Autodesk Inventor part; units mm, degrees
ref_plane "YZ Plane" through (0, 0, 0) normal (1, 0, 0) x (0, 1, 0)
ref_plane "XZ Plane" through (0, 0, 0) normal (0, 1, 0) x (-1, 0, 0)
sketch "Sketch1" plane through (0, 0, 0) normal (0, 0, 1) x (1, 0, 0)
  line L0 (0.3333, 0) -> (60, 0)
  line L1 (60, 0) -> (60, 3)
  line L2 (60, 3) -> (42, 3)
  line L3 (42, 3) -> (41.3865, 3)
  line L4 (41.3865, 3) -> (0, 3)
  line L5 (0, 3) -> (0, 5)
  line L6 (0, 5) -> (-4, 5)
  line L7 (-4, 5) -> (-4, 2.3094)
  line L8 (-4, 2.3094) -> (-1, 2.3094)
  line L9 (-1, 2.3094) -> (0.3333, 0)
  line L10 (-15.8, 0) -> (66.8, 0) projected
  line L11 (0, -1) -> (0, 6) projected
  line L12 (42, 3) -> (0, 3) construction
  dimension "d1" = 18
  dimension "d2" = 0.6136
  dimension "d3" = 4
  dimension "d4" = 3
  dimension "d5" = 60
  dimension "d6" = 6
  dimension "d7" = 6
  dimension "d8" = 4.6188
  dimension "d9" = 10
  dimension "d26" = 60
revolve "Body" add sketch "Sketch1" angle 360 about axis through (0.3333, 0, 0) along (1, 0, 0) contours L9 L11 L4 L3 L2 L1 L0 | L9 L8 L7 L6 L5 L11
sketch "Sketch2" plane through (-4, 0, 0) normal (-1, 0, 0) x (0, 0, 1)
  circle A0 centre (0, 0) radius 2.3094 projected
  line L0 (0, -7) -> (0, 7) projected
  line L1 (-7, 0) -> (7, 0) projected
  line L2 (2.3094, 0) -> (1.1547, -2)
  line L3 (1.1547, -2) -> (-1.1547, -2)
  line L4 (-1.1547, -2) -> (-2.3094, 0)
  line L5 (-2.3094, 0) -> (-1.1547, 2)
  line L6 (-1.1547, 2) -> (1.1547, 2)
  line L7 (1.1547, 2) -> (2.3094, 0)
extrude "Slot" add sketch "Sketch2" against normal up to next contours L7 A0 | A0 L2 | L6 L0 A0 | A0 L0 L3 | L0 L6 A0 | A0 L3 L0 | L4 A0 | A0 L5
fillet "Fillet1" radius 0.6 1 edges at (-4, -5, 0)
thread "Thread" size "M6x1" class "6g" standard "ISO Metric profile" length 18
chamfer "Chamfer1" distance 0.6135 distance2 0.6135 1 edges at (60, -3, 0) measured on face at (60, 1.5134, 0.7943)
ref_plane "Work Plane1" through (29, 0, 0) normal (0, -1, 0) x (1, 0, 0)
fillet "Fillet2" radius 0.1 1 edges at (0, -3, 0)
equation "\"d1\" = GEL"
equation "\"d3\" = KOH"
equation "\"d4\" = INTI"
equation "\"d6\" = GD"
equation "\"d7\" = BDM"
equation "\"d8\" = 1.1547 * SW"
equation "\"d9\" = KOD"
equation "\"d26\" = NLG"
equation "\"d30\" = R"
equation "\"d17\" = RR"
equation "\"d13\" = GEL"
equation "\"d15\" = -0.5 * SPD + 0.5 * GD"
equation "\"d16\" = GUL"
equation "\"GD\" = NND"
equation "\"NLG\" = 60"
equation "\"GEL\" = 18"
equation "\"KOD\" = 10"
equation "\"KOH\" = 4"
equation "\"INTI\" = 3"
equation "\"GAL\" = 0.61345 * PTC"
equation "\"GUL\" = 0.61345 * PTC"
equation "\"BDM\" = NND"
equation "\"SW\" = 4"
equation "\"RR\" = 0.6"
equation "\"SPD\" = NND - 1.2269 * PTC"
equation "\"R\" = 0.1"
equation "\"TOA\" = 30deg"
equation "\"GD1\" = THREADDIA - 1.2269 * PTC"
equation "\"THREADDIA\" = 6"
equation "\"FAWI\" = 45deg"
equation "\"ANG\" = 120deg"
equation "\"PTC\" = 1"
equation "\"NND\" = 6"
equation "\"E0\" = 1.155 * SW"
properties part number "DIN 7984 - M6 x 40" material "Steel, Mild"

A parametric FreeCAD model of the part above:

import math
import FreeCAD as App
import Part
import Sketcher
from FreeCAD import Vector
Q = App.Units.Quantity


def edges_at(feature, points):
    """Names of the edges that pass closest to the given points."""
    edges = feature.Shape.Edges
    near = lambda p: min(range(len(edges)), key=lambda i: edges[i].distToShape(Part.Vertex(*p))[0])
    return sorted({f"Edge{near(p) + 1}" for p in points})


def add_polygon(sketch, points):
    """Adds a closed chain of lines whose ends are joined by coincident constraints."""
    first, n = sketch.GeometryCount, len(points)
    for a, b in zip(points, points[1:] + points[:1]):
        sketch.addGeometry(Part.LineSegment(App.Vector(*a, 0), App.Vector(*b, 0)), False)
    for i in range(n):
        sketch.addConstraint(Sketcher.Constraint("Coincident", first + i, 2, first + (i + 1) % n, 1))

doc = App.newDocument("Part")
body = doc.addObject("PartDesign::Body", "Body")

sketch1 = body.newObject("Sketcher::SketchObject", "Sketch")
sketch1.AttachmentSupport = (doc.getObject("XY_Plane"), [""])
sketch1.MapMode = "FlatFace"
add_polygon(sketch1, [(0.3, 0), (60, 0), (60, 3), (0, 3), (0, 5), (-4, 5), (-4, 2.3), (-1, 2.3)])
sketch1.addConstraint(Sketcher.Constraint("Horizontal", 0))
sketch1.addConstraint(Sketcher.Constraint("Vertical", 1))
sketch1.addConstraint(Sketcher.Constraint("Horizontal", 2))
sketch1.addConstraint(Sketcher.Constraint("Vertical", 3))
sketch1.addConstraint(Sketcher.Constraint("Horizontal", 4))
sketch1.addConstraint(Sketcher.Constraint("Vertical", 5))
sketch1.addConstraint(Sketcher.Constraint("Horizontal", 6))
sketch1.addConstraint(Sketcher.Constraint("PointOnObject", 0, 2, -1))
sketch1.addConstraint(Sketcher.Constraint("PointOnObject", 2, 2, -2))
sketch1.addConstraint(Sketcher.Constraint("Equal", 6, 1))
sketch1.addConstraint(Sketcher.Constraint("DistanceX", 2, 2, 2, 1, 60.0))
sketch1.addConstraint(Sketcher.Constraint("DistanceX", 4, 2, 4, 1, 4.0))
sketch1.addConstraint(Sketcher.Constraint("DistanceX", 6, 1, 6, 2, 3.0))
sketch1.addConstraint(Sketcher.Constraint("DistanceY", 3, 1, 3, 2, 2.0))
sketch1.addConstraint(Sketcher.Constraint("Angle", 7, Q("-60.0006 deg")))
sketch1.addConstraint(Sketcher.Constraint("DistanceX", 0, 1, 0, 2, 59.6667))
revolution = body.newObject("PartDesign::Revolution", "Revolution")
revolution.Profile = sketch1
revolution.ReferenceAxis = (sketch1, ["H_Axis"])
revolution.Angle = 360

sketch2 = body.newObject("Sketcher::SketchObject", "Sketch001")
sketch2.AttachmentSupport = (doc.getObject("YZ_Plane"), [""])
sketch2.MapMode = "FlatFace"
sketch2.AttachmentOffset = App.Placement(Vector(0, 0, -4), App.Rotation())
sketch2.addGeometry(Part.LineSegment(Vector(2, 1.2, 0), Vector(0, 2.3, 0)), False)
sketch2.addGeometry(Part.ArcOfCircle(Part.Circle(Vector(0, 0, 0), Vector(0, 0, 1), 2.3), math.radians(30), math.radians(90)), False)
sketch2.addGeometry(Part.ArcOfCircle(Part.Circle(Vector(0, 0, 0), Vector(0, 0, 1), 2.3), math.radians(90), math.radians(150)), False)
sketch2.addGeometry(Part.LineSegment(Vector(0, 2.3, 0), Vector(-2, 1.2, 0)), False)
sketch2.addGeometry(Part.ArcOfCircle(Part.Circle(Vector(0, 0, 0), Vector(0, 0, 1), 2.3), math.radians(-30), math.radians(30)), False)
sketch2.addGeometry(Part.LineSegment(Vector(2, -1.2, 0), Vector(2, 1.2, 0)), False)
sketch2.addGeometry(Part.LineSegment(Vector(-2, 1.2, 0), Vector(-2, -1.2, 0)), False)
sketch2.addGeometry(Part.ArcOfCircle(Part.Circle(Vector(0, 0, 0), Vector(0, 0, 1), 2.3), math.radians(150), math.radians(210)), False)
sketch2.addGeometry(Part.LineSegment(Vector(-2, -1.2, 0), Vector(0, -2.3, 0)), False)
sketch2.addGeometry(Part.ArcOfCircle(Part.Circle(Vector(0, 0, 0), Vector(0, 0, 1), 2.3), math.radians(-150), math.radians(-90)), False)
sketch2.addGeometry(Part.ArcOfCircle(Part.Circle(Vector(0, 0, 0), Vector(0, 0, 1), 2.3), math.radians(-90), math.radians(-30)), False)
sketch2.addGeometry(Part.LineSegment(Vector(0, -2.3, 0), Vector(2, -1.2, 0)), False)
sketch2.addConstraint(Sketcher.Constraint("Coincident", 0, 1, 1, 1))
sketch2.addConstraint(Sketcher.Constraint("Coincident", 1, 2, 0, 2))
sketch2.addConstraint(Sketcher.Constraint("Coincident", 2, 1, 3, 1))
sketch2.addConstraint(Sketcher.Constraint("Coincident", 3, 2, 2, 2))
sketch2.addConstraint(Sketcher.Constraint("Coincident", 4, 1, 5, 1))
sketch2.addConstraint(Sketcher.Constraint("Coincident", 5, 2, 4, 2))
sketch2.addConstraint(Sketcher.Constraint("Coincident", 6, 1, 7, 1))
sketch2.addConstraint(Sketcher.Constraint("Coincident", 7, 2, 6, 2))
sketch2.addConstraint(Sketcher.Constraint("Coincident", 8, 1, 9, 1))
sketch2.addConstraint(Sketcher.Constraint("Coincident", 9, 2, 8, 2))
sketch2.addConstraint(Sketcher.Constraint("Coincident", 10, 1, 11, 1))
sketch2.addConstraint(Sketcher.Constraint("Coincident", 11, 2, 10, 2))
sketch2.addConstraint(Sketcher.Constraint("Vertical", 5))
sketch2.addConstraint(Sketcher.Constraint("Vertical", 6))
sketch2.addConstraint(Sketcher.Constraint("Coincident", 1, 3, -1, 1))
sketch2.addConstraint(Sketcher.Constraint("Coincident", 2, 3, -1, 1))
sketch2.addConstraint(Sketcher.Constraint("Coincident", 4, 3, -1, 1))
sketch2.addConstraint(Sketcher.Constraint("Coincident", 7, 3, -1, 1))
sketch2.addConstraint(Sketcher.Constraint("Coincident", 9, 3, -1, 1))
sketch2.addConstraint(Sketcher.Constraint("Coincident", 10, 3, -1, 1))
sketch2.addConstraint(Sketcher.Constraint("Coincident", 2, 1, 1, 2))
sketch2.addConstraint(Sketcher.Constraint("Coincident", 5, 2, 0, 1))
sketch2.addConstraint(Sketcher.Constraint("Coincident", 6, 1, 3, 2))
sketch2.addConstraint(Sketcher.Constraint("Coincident", 8, 1, 7, 2))
sketch2.addConstraint(Sketcher.Constraint("Coincident", 10, 1, 9, 2))
sketch2.addConstraint(Sketcher.Constraint("PointOnObject", 1, 2, -2))
sketch2.addConstraint(Sketcher.Constraint("PointOnObject", 9, 2, -2))
sketch2.addConstraint(Sketcher.Constraint("Parallel", 0, 8))
sketch2.addConstraint(Sketcher.Constraint("Parallel", 3, 11))
sketch2.addConstraint(Sketcher.Constraint("Angle", 0, Q("150 deg")))
sketch2.addConstraint(Sketcher.Constraint("DistanceX", -1, 1, 0, 1, 2.0))
pad1 = body.newObject("PartDesign::Pad", "Pad")
pad1.Profile = sketch2
pad1.Length = 3.1786
doc.recompute()

fillet = body.newObject("PartDesign::Fillet", "Fillet")
fillet.Base = (pad1, edges_at(pad1, [(-4, -5, 0)]))
fillet.Radius = 0.6
doc.recompute()

chamfer = body.newObject("PartDesign::Chamfer", "Chamfer")
chamfer.Base = (fillet, edges_at(fillet, [(60, -3, 0)]))
chamfer.ChamferType = "Two distances"
chamfer.Size = 0.6135
chamfer.Size2 = 0.6135
doc.recompute()

fillet2 = body.newObject("PartDesign::Fillet", "Fillet001")
fillet2.Base = (chamfer, edges_at(chamfer, [(0, -3, 0)]))
fillet2.Radius = 0.1

doc.recompute()
